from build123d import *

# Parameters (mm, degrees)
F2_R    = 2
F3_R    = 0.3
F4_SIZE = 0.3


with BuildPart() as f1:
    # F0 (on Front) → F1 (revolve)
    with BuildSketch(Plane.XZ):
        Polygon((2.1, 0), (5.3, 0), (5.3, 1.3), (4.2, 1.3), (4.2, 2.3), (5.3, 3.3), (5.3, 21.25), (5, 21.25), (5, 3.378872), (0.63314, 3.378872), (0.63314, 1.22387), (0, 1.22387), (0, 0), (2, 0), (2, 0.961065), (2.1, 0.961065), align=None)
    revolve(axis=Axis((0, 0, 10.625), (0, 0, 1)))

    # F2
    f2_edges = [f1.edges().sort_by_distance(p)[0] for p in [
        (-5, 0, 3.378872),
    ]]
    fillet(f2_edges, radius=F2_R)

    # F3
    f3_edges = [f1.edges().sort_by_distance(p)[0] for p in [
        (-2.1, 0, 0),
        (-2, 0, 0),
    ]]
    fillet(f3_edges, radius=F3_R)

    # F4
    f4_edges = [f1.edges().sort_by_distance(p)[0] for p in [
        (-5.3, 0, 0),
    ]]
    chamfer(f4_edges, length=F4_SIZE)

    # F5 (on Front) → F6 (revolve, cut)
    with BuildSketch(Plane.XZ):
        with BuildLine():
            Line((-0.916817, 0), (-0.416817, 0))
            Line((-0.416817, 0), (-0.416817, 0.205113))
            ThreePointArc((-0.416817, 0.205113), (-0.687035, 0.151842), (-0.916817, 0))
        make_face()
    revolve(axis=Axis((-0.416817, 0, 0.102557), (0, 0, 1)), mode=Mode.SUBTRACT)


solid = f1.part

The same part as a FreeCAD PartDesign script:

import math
import FreeCAD as App
import Part
import Sketcher

V = App.Vector


def edges_at(feature, points):
    """Names of the edges that pass closest to the given points."""
    edges = feature.Shape.Edges
    near = lambda p: min(range(len(edges)), key=lambda i: edges[i].distToShape(Part.Vertex(*p))[0])
    return sorted({f"Edge{near(p) + 1}" for p in points})


def add_polygon(sketch, points):
    """Adds a closed chain of lines whose ends are joined by coincident constraints."""
    first, n = sketch.GeometryCount, len(points)
    for a, b in zip(points, points[1:] + points[:1]):
        sketch.addGeometry(Part.LineSegment(App.Vector(*a, 0), App.Vector(*b, 0)), False)
    for i in range(n):
        sketch.addConstraint(Sketcher.Constraint("Coincident", first + i, 2, first + (i + 1) % n, 1))

doc = App.newDocument("Part")
body = doc.addObject("PartDesign::Body", "Body")

# Sketch on XZ plane
sketch1 = body.newObject("Sketcher::SketchObject", "Sketch")
sketch1.AttachmentSupport = (doc.getObject("XZ_Plane"), [""])
sketch1.MapMode = "FlatFace"
add_polygon(sketch1, [(2.1, 0), (5.3, 0), (5.3, 1.3), (4.2, 1.3), (4.2, 2.3), (5.3, 3.3), (5.3, 21.25), (5, 21.25), (5, 3.378872), (0.63314, 3.378872), (0.63314, 1.22387), (0, 1.22387), (0, 0), (2, 0), (2, 0.961065), (2.1, 0.961065)])  # lines 0-15
sketch1.addConstraint([
    Sketcher.Constraint("Horizontal", 0),
    Sketcher.Constraint("Vertical", 1),
    Sketcher.Constraint("Horizontal", 2),
    Sketcher.Constraint("Vertical", 3),
    Sketcher.Constraint("Vertical", 5),
    Sketcher.Constraint("Horizontal", 6),
    Sketcher.Constraint("Vertical", 7),
    Sketcher.Constraint("Horizontal", 8),
    Sketcher.Constraint("Vertical", 9),
    Sketcher.Constraint("Horizontal", 10),
    Sketcher.Constraint("Vertical", 11),
    Sketcher.Constraint("Horizontal", 12),
    Sketcher.Constraint("Vertical", 13),
    Sketcher.Constraint("Horizontal", 14),
    Sketcher.Constraint("Vertical", 15),
    Sketcher.Constraint("Coincident", 11, 2, -1, 1),
    Sketcher.Constraint("PointOnObject", 0, 2, -1),
    Sketcher.Constraint("Vertical", 1, 2, 4, 2),
    Sketcher.Constraint("DistanceX", 12, 1, 12, 2, 2.0),
    Sketcher.Constraint("DistanceY", 3, 1, 3, 2, 1.0),
    Sketcher.Constraint("DistanceX", 0, 1, 0, 2, 3.2),
    Sketcher.Constraint("DistanceX", 2, 2, 2, 1, 1.1),
    Sketcher.Constraint("DistanceX", 6, 2, 6, 1, 0.3),
    Sketcher.Constraint("DistanceX", 14, 1, 14, 2, 0.1),
    Sketcher.Constraint("DistanceY", 1, 1, 1, 2, 1.3),
    Sketcher.Constraint("DistanceY", 3, 2, 4, 2, 1.0),
    Sketcher.Constraint("DistanceY", 5, 1, 5, 2, 17.95),
    Sketcher.Constraint("DistanceY", 9, 2, 9, 1, 2.155002),
    Sketcher.Constraint("DistanceX", 8, 2, 8, 1, 4.36686),
    Sketcher.Constraint("DistanceY", 11, 2, 11, 1, 1.22387),
    Sketcher.Constraint("DistanceY", 13, 1, 13, 2, 0.961065),
])
revolution = body.newObject("PartDesign::Revolution", "Revolution")
revolution.Profile = sketch1
revolution.ReferenceAxis = (sketch1, ["V_Axis"])
revolution.Angle = 360
doc.recompute()

fillet = body.newObject("PartDesign::Fillet", "Fillet")
fillet.Base = (revolution, edges_at(revolution, [(-5, 0, 3.379)]))
fillet.Radius = 2
doc.recompute()

fillet2 = body.newObject("PartDesign::Fillet", "Fillet001")
fillet2.Base = (fillet, edges_at(fillet, [(-2.1, 0, 0), (-2, 0, 0)]))
fillet2.Radius = 0.3
doc.recompute()

chamfer = body.newObject("PartDesign::Chamfer", "Chamfer")
chamfer.Base = (fillet2, edges_at(fillet2, [(-5.3, 0, 0)]))
chamfer.Size = 0.3

# Sketch on XZ plane
sketch2 = body.newObject("Sketcher::SketchObject", "Sketch001")
sketch2.AttachmentSupport = (doc.getObject("XZ_Plane"), [""])
sketch2.MapMode = "FlatFace"
sketch2.addGeometry([
    Part.LineSegment(V(-0.916817, 0, 0), V(-0.416817, 0, 0)),
    Part.LineSegment(V(-0.416817, 0, 0), V(-0.416817, 0.205113, 0)),
    Part.ArcOfCircle(Part.Circle(V(-0.416818, -0.506862, 0), V(0, 0, 1), 0.711975), math.radians(89.999958), math.radians(134.60947)),
], False)
sketch2.addGeometry(Part.LineSegment(V(-0.416817, -0.506862, 0), V(-0.416817, 0.205113, 0)), True)  # axis
sketch2.addConstraint([
    Sketcher.Constraint("Coincident", 0, 2, 1, 1),
    Sketcher.Constraint("Coincident", 1, 2, 2, 1),
    Sketcher.Constraint("Coincident", 2, 2, 0, 1),
    Sketcher.Constraint("Horizontal", 0),
    Sketcher.Constraint("Vertical", 1),
    Sketcher.Constraint("Vertical", 3),
    Sketcher.Constraint("Coincident", 3, 1, 2, 3),
    Sketcher.Constraint("Coincident", 3, 2, 1, 2),
    Sketcher.Constraint("PointOnObject", 0, 2, -1),
    Sketcher.Constraint("DistanceX", 0, 1, 0, 2, 0.5),
    Sketcher.Constraint("Radius", 2, 0.711975),
    Sketcher.Constraint("DistanceX", 2, 3, -1, 1, 0.416818),
])
groove = body.newObject("PartDesign::Groove", "Groove")
groove.Profile = sketch2
groove.ReferenceAxis = (sketch2, ["Axis0"])
groove.Angle = 360

doc.recompute()
